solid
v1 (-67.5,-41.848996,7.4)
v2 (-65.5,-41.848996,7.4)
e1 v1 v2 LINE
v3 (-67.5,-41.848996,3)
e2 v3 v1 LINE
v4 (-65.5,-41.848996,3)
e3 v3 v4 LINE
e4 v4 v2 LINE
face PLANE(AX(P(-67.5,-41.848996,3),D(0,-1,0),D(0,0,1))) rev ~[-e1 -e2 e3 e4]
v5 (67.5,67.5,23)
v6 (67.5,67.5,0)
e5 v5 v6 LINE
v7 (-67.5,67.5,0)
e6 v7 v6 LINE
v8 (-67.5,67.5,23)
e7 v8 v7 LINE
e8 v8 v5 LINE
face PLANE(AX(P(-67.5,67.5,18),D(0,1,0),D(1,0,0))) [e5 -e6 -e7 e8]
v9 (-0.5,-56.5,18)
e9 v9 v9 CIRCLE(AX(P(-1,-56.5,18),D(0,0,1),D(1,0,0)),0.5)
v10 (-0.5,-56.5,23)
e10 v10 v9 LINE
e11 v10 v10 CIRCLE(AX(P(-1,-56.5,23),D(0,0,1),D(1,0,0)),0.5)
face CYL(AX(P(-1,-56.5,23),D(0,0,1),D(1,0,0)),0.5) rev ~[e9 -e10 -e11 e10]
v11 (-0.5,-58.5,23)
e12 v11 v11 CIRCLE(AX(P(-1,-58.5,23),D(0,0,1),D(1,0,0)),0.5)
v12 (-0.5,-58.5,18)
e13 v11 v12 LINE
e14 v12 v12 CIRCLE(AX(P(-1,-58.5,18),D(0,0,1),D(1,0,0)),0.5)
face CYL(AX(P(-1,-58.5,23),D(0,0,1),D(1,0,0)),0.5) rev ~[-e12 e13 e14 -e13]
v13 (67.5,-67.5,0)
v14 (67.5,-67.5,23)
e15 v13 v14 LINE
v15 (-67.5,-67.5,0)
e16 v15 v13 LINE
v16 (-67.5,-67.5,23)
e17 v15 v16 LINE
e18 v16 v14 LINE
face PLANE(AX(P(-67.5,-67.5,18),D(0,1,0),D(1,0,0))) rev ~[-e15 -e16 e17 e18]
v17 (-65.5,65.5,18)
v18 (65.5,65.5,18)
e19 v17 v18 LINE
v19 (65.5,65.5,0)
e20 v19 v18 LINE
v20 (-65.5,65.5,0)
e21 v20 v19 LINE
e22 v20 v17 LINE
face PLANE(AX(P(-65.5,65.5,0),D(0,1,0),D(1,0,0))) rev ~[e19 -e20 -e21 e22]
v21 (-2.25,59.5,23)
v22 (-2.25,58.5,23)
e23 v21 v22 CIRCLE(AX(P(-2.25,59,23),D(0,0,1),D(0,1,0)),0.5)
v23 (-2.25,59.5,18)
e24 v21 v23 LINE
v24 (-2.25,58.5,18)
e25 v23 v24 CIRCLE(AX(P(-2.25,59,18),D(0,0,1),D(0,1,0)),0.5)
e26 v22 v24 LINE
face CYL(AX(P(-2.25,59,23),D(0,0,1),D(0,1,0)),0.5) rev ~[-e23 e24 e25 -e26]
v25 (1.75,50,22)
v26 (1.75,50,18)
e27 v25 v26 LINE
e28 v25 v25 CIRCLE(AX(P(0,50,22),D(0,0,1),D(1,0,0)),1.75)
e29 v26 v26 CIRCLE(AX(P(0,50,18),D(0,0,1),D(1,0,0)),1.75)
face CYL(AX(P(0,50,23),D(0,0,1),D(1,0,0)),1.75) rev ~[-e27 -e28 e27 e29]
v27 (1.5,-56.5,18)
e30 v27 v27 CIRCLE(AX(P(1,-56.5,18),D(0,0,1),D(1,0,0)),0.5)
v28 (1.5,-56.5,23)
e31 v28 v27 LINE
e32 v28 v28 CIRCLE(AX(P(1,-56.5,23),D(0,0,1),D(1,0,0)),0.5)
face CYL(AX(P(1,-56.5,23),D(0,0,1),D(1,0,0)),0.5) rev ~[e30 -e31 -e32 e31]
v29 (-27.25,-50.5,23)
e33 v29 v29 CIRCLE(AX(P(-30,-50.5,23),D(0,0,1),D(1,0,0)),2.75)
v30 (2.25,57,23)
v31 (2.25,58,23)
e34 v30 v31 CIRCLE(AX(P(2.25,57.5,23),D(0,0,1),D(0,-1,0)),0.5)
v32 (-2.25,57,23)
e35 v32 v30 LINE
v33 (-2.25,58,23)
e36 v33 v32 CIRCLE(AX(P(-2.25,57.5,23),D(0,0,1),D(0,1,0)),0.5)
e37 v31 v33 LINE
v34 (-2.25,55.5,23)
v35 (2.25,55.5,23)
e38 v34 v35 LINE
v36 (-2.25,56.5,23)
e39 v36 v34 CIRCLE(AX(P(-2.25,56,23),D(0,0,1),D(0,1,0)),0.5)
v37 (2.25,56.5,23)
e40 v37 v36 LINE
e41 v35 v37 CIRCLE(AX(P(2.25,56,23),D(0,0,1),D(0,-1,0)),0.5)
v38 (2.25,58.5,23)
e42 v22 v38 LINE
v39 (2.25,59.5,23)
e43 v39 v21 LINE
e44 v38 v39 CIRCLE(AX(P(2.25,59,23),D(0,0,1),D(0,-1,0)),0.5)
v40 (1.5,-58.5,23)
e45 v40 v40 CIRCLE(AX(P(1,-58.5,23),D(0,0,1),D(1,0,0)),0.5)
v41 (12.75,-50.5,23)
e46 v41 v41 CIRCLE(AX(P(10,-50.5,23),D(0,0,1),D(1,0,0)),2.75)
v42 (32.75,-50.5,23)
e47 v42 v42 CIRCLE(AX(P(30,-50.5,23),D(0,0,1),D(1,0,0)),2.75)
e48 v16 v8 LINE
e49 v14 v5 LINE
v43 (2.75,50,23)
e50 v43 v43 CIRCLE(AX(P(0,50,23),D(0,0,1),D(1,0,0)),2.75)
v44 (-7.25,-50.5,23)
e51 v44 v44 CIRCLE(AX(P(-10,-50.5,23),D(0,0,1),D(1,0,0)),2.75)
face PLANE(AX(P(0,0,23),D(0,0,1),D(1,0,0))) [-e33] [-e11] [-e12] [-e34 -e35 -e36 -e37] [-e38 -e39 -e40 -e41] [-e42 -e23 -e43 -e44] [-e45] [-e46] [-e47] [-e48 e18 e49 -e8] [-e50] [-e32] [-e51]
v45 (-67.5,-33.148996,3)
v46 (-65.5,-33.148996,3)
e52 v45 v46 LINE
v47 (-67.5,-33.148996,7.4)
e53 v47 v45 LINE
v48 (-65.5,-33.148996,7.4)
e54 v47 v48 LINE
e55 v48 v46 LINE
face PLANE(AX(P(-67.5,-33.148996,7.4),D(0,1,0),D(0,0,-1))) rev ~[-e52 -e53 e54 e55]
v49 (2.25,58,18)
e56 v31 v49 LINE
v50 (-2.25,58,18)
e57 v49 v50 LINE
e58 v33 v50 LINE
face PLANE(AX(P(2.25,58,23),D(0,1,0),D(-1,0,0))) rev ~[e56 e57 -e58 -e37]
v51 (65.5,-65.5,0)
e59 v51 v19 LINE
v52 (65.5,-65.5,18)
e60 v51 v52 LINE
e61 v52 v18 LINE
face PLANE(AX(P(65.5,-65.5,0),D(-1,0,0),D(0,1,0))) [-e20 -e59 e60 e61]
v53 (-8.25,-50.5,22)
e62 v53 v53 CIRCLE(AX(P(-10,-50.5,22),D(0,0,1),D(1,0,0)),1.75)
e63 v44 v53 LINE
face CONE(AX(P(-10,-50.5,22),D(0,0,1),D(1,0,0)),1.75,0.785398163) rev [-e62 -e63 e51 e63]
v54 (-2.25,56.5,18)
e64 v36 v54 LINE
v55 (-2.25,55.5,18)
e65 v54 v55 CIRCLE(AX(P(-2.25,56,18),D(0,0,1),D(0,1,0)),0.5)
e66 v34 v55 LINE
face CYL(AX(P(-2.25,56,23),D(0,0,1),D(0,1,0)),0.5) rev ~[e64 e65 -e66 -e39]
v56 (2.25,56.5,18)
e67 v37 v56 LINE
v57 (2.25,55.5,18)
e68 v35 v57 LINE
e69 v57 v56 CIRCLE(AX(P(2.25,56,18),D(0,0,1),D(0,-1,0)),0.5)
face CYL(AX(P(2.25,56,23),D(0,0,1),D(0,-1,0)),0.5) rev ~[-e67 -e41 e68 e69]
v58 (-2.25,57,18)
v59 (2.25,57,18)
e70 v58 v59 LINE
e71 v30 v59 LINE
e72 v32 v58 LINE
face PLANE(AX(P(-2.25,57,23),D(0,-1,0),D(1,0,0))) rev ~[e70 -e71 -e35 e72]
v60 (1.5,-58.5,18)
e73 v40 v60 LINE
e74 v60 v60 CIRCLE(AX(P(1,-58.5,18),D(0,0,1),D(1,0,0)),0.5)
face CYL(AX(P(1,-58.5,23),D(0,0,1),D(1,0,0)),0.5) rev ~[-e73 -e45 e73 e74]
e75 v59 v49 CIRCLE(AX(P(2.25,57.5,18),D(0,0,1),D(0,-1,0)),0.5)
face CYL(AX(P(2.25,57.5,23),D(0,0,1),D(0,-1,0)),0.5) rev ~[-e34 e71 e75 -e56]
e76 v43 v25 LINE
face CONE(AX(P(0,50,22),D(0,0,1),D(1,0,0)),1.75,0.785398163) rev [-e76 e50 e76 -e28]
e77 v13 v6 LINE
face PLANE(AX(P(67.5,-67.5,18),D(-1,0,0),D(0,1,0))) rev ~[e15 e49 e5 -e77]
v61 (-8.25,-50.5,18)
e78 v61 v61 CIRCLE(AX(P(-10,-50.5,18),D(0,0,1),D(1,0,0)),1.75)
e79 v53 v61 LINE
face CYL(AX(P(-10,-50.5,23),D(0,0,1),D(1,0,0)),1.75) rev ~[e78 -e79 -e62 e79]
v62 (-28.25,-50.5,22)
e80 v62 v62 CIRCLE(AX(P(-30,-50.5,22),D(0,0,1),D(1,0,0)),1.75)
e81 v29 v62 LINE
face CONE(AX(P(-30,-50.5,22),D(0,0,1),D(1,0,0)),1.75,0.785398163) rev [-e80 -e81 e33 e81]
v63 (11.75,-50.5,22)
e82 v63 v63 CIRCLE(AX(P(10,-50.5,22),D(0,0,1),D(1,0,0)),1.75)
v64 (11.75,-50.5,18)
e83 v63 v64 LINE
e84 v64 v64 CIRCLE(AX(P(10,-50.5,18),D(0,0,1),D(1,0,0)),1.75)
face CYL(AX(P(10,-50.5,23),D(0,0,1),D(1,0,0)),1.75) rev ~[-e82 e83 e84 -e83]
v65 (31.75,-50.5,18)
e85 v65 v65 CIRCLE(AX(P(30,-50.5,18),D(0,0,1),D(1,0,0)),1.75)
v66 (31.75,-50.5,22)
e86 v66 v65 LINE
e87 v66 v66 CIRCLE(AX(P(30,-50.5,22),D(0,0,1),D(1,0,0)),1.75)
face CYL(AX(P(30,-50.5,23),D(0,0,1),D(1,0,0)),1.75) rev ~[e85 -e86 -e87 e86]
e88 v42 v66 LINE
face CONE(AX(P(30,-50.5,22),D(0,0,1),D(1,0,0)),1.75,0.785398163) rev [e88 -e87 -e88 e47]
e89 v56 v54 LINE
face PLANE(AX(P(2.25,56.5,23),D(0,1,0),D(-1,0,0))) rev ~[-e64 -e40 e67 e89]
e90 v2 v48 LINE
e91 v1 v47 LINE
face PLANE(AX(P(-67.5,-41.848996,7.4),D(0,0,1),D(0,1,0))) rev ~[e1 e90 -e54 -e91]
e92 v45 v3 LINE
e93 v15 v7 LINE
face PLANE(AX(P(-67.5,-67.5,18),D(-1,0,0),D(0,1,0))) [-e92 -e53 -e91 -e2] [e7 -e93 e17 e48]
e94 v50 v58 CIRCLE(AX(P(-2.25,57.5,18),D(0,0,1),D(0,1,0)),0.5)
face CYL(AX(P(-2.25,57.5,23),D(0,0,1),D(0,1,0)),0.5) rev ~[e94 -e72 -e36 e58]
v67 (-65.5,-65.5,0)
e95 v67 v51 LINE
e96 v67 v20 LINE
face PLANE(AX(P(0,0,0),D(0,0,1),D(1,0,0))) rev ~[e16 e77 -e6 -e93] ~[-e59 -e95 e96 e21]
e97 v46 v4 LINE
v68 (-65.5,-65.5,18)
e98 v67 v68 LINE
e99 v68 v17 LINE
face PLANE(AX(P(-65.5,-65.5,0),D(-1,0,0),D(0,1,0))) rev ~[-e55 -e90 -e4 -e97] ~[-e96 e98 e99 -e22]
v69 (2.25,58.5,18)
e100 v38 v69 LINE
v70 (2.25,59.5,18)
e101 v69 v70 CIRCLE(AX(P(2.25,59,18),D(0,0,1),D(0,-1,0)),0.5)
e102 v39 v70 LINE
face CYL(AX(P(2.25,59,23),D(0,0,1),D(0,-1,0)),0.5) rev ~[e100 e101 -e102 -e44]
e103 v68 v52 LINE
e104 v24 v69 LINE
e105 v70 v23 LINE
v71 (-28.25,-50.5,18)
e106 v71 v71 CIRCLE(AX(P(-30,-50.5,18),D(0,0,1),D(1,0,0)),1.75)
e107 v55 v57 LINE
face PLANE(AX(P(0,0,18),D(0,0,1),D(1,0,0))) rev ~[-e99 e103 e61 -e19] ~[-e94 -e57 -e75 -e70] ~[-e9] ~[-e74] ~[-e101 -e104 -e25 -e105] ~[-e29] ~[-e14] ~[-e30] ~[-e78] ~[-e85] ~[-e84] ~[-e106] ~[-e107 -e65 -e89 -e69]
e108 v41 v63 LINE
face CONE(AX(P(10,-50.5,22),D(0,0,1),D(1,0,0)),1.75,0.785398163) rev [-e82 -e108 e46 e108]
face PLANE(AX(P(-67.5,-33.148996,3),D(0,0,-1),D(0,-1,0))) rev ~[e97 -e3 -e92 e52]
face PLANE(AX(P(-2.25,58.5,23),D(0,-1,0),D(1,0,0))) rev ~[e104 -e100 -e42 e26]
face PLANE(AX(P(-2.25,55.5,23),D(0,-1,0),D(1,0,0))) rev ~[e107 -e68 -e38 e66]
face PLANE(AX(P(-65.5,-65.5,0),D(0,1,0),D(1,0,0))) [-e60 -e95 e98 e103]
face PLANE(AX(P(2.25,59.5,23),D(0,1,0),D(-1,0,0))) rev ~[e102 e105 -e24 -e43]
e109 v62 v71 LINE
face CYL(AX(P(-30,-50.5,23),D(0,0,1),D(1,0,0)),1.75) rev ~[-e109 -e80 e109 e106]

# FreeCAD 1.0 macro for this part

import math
import FreeCAD as App
import Part
import Sketcher

V = App.Vector


def edges_at(feature, points):
    """Names of the edges that pass closest to the given points."""
    edges = feature.Shape.Edges
    near = lambda p: min(range(len(edges)), key=lambda i: edges[i].distToShape(Part.Vertex(*p))[0])
    return sorted({f"Edge{near(p) + 1}" for p in points})


def add_polygon(sketch, points):
    """Adds a closed chain of lines whose ends are joined by coincident constraints."""
    first, n = sketch.GeometryCount, len(points)
    for a, b in zip(points, points[1:] + points[:1]):
        sketch.addGeometry(Part.LineSegment(App.Vector(*a, 0), App.Vector(*b, 0)), False)
    for i in range(n):
        sketch.addConstraint(Sketcher.Constraint("Coincident", first + i, 2, first + (i + 1) % n, 1))

doc = App.newDocument("Part")
body = doc.addObject("PartDesign::Body", "Body")

sketch1 = doc.addObject("Sketcher::SketchObject", "Sketch")
body.addObject(sketch1)
sketch1.AttachmentSupport = (doc.XY_Plane, [""])
sketch1.MapMode = "FlatFace"
add_polygon(sketch1, [(-67.5, 67.5), (-67.5, -67.5), (67.5, -67.5), (67.5, 67.5)])
add_polygon(sketch1, [(65.5, -65.5), (-65.5, -65.5), (-65.5, 65.5), (65.5, 65.5)])
sketch1.addConstraint([
    Sketcher.Constraint("Vertical", 0),
    Sketcher.Constraint("Horizontal", 1),
    Sketcher.Constraint("Vertical", 2),
    Sketcher.Constraint("Horizontal", 3),
    Sketcher.Constraint("Horizontal", 4),
    Sketcher.Constraint("Vertical", 5),
    Sketcher.Constraint("Horizontal", 6),
    Sketcher.Constraint("Vertical", 7),
    Sketcher.Constraint("Symmetric", 0, 2, 2, 2, -1, 1),
    Sketcher.Constraint("Symmetric", 4, 2, 6, 2, -1, 1),
    Sketcher.Constraint("Equal", 3, 0),
    Sketcher.Constraint("Equal", 6, 5),
    Sketcher.Constraint("DistanceX", 1, 1, 1, 2, 135.0),
    Sketcher.Constraint("DistanceX", 4, 2, 4, 1, 131.0),
])
pad1 = doc.addObject("PartDesign::Pad", "Pad")
body.addObject(pad1)
pad1.Profile = sketch1
pad1.Length = 18

sketch2 = doc.addObject("Sketcher::SketchObject", "Sketch001")
body.addObject(sketch2)
sketch2.AttachmentSupport = (doc.XY_Plane, [""])
sketch2.MapMode = "FlatFace"
sketch2.AttachmentOffset = App.Placement(V(0, 0, 18), App.Rotation())
add_polygon(sketch2, [(-67.5, 67.5), (-67.5, -67.5), (67.5, -67.5), (67.5, 67.5)])
sketch2.addConstraint([
    Sketcher.Constraint("Vertical", 0),
    Sketcher.Constraint("Horizontal", 1),
    Sketcher.Constraint("Vertical", 2),
    Sketcher.Constraint("Horizontal", 3),
    Sketcher.Constraint("Symmetric", 0, 2, 2, 2, -1, 1),
    Sketcher.Constraint("Equal", 3, 0),
    Sketcher.Constraint("DistanceX", 1, 1, 1, 2, 135.0),
])
pad2 = doc.addObject("PartDesign::Pad", "Pad001")
body.addObject(pad2)
pad2.Profile = sketch2
pad2.Length = 5

sketch3 = doc.addObject("Sketcher::SketchObject", "Sketch002")
body.addObject(sketch3)
sketch3.AttachmentSupport = (doc.YZ_Plane, [""])
sketch3.MapMode = "FlatFace"
sketch3.AttachmentOffset = App.Placement(V(0, 0, -67.5), App.Rotation())
add_polygon(sketch3, [(-33.148996, 3), (-41.848996, 3), (-41.848996, 7.4), (-33.148996, 7.4)])
sketch3.addConstraint([
    Sketcher.Constraint("Horizontal", 0),
    Sketcher.Constraint("Vertical", 1),
    Sketcher.Constraint("Horizontal", 2),
    Sketcher.Constraint("Vertical", 3),
    Sketcher.Constraint("DistanceX", 0, 2, 0, 1, 8.7),
    Sketcher.Constraint("DistanceY", 1, 1, 1, 2, 4.4),
    Sketcher.Constraint("DistanceY", -1, 1, 0, 2, 3.0),
    Sketcher.Constraint("DistanceX", 0, 2, -1, 1, 41.848996),
])
pocket1 = doc.addObject("PartDesign::Pocket", "Pocket")
body.addObject(pocket1)
pocket1.Profile = sketch3
pocket1.Length = 11
pocket1.Reversed = True

sketch4 = doc.addObject("Sketcher::SketchObject", "Sketch003")
body.addObject(sketch4)
sketch4.AttachmentSupport = (doc.XY_Plane, [""])
sketch4.MapMode = "FlatFace"
sketch4.AttachmentOffset = App.Placement(V(0, 0, 23), App.Rotation())
sketch4.addGeometry([
    Part.LineSegment(V(2.25, 56.5, 0), V(-2.25, 56.5, 0)),
    Part.ArcOfCircle(Part.Circle(V(-2.25, 56, 0), V(0, 0, 1), 0.5), math.radians(90), math.radians(270)),
    Part.LineSegment(V(-2.25, 55.5, 0), V(2.25, 55.5, 0)),
    Part.ArcOfCircle(Part.Circle(V(2.25, 56, 0), V(0, 0, 1), 0.5), math.radians(-90), math.radians(90)),
    Part.LineSegment(V(2.25, 58, 0), V(-2.25, 58, 0)),
    Part.ArcOfCircle(Part.Circle(V(-2.25, 57.5, 0), V(0, 0, 1), 0.5), math.radians(90), math.radians(270)),
    Part.LineSegment(V(-2.25, 57, 0), V(2.25, 57, 0)),
    Part.ArcOfCircle(Part.Circle(V(2.25, 57.5, 0), V(0, 0, 1), 0.5), math.radians(-90), math.radians(90)),
    Part.LineSegment(V(2.25, 59.5, 0), V(-2.25, 59.5, 0)),
    Part.ArcOfCircle(Part.Circle(V(-2.25, 59, 0), V(0, 0, 1), 0.5), math.radians(90), math.radians(270)),
    Part.LineSegment(V(-2.25, 58.5, 0), V(2.25, 58.5, 0)),
    Part.ArcOfCircle(Part.Circle(V(2.25, 59, 0), V(0, 0, 1), 0.5), math.radians(-90), math.radians(90)),
    Part.Circle(V(0, 50, 0), V(0, 0, 1), 1.75),
    Part.Circle(V(30, -50.5, 0), V(0, 0, 1), 1.75),
    Part.Circle(V(10, -50.5, 0), V(0, 0, 1), 1.75),
    Part.Circle(V(-10, -50.5, 0), V(0, 0, 1), 1.75),
    Part.Circle(V(-30, -50.5, 0), V(0, 0, 1), 1.75),
    Part.Circle(V(1, -56.5, 0), V(0, 0, 1), 0.5),
    Part.Circle(V(1, -58.5, 0), V(0, 0, 1), 0.5),
    Part.Circle(V(-1, -58.5, 0), V(0, 0, 1), 0.5),
    Part.Circle(V(-1, -56.5, 0), V(0, 0, 1), 0.5),
], False)
sketch4.addConstraint([
    Sketcher.Constraint("Tangent", 0, 2, 1, 1),
    Sketcher.Constraint("Tangent", 1, 2, 2, 1),
    Sketcher.Constraint("Tangent", 2, 2, 3, 1),
    Sketcher.Constraint("Tangent", 3, 2, 0, 1),
    Sketcher.Constraint("Tangent", 4, 2, 5, 1),
    Sketcher.Constraint("Tangent", 5, 2, 6, 1),
    Sketcher.Constraint("Tangent", 6, 2, 7, 1),
    Sketcher.Constraint("Tangent", 7, 2, 4, 1),
    Sketcher.Constraint("Tangent", 8, 2, 9, 1),
    Sketcher.Constraint("Tangent", 9, 2, 10, 1),
    Sketcher.Constraint("Tangent", 10, 2, 11, 1),
    Sketcher.Constraint("Tangent", 11, 2, 8, 1),
    Sketcher.Constraint("Horizontal", 0),
    Sketcher.Constraint("Horizontal", 2),
    Sketcher.Constraint("Horizontal", 4),
    Sketcher.Constraint("Horizontal", 6),
    Sketcher.Constraint("Horizontal", 8),
    Sketcher.Constraint("Horizontal", 10),
    Sketcher.Constraint("Equal", 3, 5),
    Sketcher.Constraint("Equal", 7, 9),
    Sketcher.Constraint("Equal", 12, 13),
    Sketcher.Constraint("Equal", 13, 14),
    Sketcher.Constraint("Equal", 14, 15),
    Sketcher.Constraint("Equal", 15, 16),
    Sketcher.Constraint("Equal", 11, 17),
    Sketcher.Constraint("Equal", 17, 18),
    Sketcher.Constraint("Equal", 18, 19),
    Sketcher.Constraint("Equal", 19, 20),
    Sketcher.Constraint("Symmetric", 14, 3, 15, 3, -2),
    Sketcher.Constraint("Symmetric", 13, 3, 16, 3, -2),
    Sketcher.Constraint("Symmetric", 18, 3, 19, 3, -2),
    Sketcher.Constraint("Symmetric", 17, 3, 20, 3, -2),
    Sketcher.Constraint("PointOnObject", 12, 3, -2),
    Sketcher.Constraint("Horizontal", 13, 3, 14, 3),
    Sketcher.Constraint("Vertical", 1, 3, 5, 3),
    Sketcher.Constraint("Vertical", 3, 3, 7, 3),
    Sketcher.Constraint("Vertical", 5, 3, 9, 3),
    Sketcher.Constraint("Vertical", 7, 3, 11, 3),
    Sketcher.Constraint("Vertical", 17, 3, 18, 3),
    Sketcher.Constraint("Diameter", 17, 1.0),
    Sketcher.Constraint("Diameter", 12, 3.5),
    Sketcher.Constraint("DistanceX", 0, 2, 0, 1, 4.5),
    Sketcher.Constraint("DistanceY", -1, 1, 1, 3, 56.0),
    Sketcher.Constraint("DistanceY", -1, 1, 9, 3, 59.0),
    Sketcher.Constraint("DistanceY", -1, 1, 12, 3, 50.0),
    Sketcher.Constraint("DistanceX", -1, 1, 13, 3, 30.0),
    Sketcher.Constraint("DistanceX", -1, 1, 14, 3, 10.0),
    Sketcher.Constraint("DistanceX", -1, 1, 17, 3, 1.0),
    Sketcher.Constraint("DistanceY", -1, 1, 4, 2, 58.0),
    Sketcher.Constraint("DistanceY", 13, 3, 7, 3, 108.0),
    Sketcher.Constraint("DistanceY", 17, 3, 14, 3, 6.0),
    Sketcher.Constraint("DistanceY", 18, 3, 17, 3, 2.0),
    Sketcher.Constraint("DistanceX", 1, 3, -1, 1, 2.25),
])
pocket2 = doc.addObject("PartDesign::Pocket", "Pocket001")
body.addObject(pocket2)
pocket2.Profile = sketch4
pocket2.Length = 10
doc.recompute()

chamfer = doc.addObject("PartDesign::Chamfer", "Chamfer")
body.addObject(chamfer)
chamfer.Base = (pocket2, edges_at(pocket2, [
    (8.25, -50.5, 23),
    (-11.75, -50.5, 23),
    (-31.75, -50.5, 23),
    (28.25, -50.5, 23),
    (-1.75, 50, 23),
]))
chamfer.Size = 1

doc.recompute()
